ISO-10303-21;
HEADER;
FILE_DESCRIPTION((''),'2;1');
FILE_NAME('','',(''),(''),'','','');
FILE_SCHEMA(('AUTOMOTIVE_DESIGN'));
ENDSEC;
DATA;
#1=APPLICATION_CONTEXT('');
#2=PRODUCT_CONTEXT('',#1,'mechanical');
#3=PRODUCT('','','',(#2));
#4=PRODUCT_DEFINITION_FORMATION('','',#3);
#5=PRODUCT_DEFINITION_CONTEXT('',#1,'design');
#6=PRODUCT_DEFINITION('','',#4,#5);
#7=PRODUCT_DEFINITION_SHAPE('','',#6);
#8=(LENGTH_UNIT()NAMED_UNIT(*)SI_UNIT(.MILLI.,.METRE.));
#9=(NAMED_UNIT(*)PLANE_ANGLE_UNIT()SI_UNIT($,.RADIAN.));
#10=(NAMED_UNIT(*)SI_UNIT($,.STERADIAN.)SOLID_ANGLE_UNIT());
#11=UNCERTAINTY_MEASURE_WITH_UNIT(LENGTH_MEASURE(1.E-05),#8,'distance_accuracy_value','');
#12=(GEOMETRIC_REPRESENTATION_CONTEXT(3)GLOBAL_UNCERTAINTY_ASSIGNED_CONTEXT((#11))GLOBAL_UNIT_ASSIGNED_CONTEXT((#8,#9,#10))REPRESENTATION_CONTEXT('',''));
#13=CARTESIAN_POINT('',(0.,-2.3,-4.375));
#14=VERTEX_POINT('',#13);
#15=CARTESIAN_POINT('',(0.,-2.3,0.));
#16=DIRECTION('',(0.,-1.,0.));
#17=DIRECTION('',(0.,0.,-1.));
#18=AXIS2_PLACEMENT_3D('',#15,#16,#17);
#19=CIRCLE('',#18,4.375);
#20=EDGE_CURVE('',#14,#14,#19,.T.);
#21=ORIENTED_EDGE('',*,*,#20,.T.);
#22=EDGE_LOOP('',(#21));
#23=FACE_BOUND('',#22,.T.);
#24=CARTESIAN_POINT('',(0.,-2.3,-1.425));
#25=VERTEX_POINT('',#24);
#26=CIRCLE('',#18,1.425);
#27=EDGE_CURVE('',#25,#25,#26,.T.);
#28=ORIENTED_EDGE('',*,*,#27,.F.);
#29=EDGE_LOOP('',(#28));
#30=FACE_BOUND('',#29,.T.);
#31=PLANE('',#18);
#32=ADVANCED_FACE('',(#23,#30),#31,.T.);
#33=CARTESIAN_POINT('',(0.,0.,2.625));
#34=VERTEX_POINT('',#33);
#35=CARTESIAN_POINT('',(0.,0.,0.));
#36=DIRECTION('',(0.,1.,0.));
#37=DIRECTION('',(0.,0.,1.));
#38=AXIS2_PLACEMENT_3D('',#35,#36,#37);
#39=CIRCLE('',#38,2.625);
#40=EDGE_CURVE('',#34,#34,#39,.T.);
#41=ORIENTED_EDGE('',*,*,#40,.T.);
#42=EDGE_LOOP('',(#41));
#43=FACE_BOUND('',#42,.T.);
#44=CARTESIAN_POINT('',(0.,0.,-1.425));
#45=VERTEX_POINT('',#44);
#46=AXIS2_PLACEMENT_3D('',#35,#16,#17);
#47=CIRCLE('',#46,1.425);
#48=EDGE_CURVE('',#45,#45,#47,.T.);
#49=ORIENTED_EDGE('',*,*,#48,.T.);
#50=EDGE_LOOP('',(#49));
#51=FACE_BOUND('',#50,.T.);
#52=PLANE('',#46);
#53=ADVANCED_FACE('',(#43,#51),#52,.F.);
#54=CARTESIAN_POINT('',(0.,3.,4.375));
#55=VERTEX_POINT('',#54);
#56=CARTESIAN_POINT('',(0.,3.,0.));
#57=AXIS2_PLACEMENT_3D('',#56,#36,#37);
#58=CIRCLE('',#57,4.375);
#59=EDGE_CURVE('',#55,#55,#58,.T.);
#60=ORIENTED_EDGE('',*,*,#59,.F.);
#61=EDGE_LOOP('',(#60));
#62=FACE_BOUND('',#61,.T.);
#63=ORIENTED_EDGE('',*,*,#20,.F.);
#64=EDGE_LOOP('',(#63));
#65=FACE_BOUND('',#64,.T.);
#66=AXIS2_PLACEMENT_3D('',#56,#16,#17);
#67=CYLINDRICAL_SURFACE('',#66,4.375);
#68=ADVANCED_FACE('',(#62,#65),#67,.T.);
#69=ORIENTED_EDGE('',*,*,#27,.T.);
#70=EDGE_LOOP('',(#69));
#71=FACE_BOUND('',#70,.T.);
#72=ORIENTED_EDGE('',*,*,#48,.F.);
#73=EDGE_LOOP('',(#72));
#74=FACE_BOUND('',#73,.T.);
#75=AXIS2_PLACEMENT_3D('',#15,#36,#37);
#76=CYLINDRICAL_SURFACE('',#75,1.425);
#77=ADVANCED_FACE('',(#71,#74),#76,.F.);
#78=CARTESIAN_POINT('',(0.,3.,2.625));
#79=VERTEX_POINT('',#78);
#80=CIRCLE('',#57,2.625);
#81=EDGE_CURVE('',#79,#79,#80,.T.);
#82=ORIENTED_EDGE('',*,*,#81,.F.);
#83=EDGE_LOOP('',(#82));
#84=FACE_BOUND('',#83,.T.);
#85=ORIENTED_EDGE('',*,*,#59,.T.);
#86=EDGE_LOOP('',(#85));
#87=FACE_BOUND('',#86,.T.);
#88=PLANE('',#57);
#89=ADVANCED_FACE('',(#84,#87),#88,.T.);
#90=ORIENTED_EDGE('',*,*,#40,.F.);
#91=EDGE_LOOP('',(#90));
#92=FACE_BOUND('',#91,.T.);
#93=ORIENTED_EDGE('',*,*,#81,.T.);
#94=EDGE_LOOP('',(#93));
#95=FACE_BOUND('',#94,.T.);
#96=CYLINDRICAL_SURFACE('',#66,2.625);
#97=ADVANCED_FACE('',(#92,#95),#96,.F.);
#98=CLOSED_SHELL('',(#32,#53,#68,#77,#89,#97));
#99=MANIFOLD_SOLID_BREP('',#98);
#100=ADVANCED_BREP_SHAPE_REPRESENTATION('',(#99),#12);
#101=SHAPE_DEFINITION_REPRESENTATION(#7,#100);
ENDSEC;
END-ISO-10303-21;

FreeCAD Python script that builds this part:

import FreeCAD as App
import Part
import Sketcher

doc = App.newDocument("Part")
body = doc.addObject("PartDesign::Body", "Body")

# Sketch on XZ plane
sketch1 = body.newObject("Sketcher::SketchObject", "Sketch")
sketch1.AttachmentSupport = (doc.getObject("XZ_Plane"), [""])
sketch1.MapMode = "FlatFace"
sketch1.addGeometry([
    Part.Circle(App.Vector(0, 0, 0), App.Vector(0, 0, 1), 4.4),
    Part.Circle(App.Vector(0, 0, 0), App.Vector(0, 0, 1), 2.6),
], False)
sketch1.addConstraint([
    Sketcher.Constraint("Coincident", 0, 3, -1, 1),
    Sketcher.Constraint("Coincident", 1, 3, -1, 1),
    Sketcher.Constraint("Diameter", 0, 8.75),
    Sketcher.Constraint("Diameter", 1, 5.25),
])
pad1 = body.newObject("PartDesign::Pad", "Pad")
pad1.Profile = sketch1
pad1.Length = 3
pad1.Reversed = True

# Sketch on XZ plane
sketch2 = body.newObject("Sketcher::SketchObject", "Sketch001")
sketch2.AttachmentSupport = (doc.getObject("XZ_Plane"), [""])
sketch2.MapMode = "FlatFace"
sketch2.AttachmentOffset = App.Placement(App.Vector(0, 0, 2.3), App.Rotation())
sketch2.addGeometry([
    Part.Circle(App.Vector(0, 0, 0), App.Vector(0, 0, 1), 4.4),
    Part.Circle(App.Vector(0, 0, 0), App.Vector(0, 0, 1), 1.4),
], False)
sketch2.addConstraint([
    Sketcher.Constraint("Coincident", 0, 3, -1, 1),
    Sketcher.Constraint("Coincident", 1, 3, -1, 1),
    Sketcher.Constraint("Diameter", 0, 8.75),
    Sketcher.Constraint("Diameter", 1, 2.85),
])
pad2 = body.newObject("PartDesign::Pad", "Pad001")
pad2.Profile = sketch2
pad2.Length = 2.3
pad2.Reversed = True

doc.recompute()
